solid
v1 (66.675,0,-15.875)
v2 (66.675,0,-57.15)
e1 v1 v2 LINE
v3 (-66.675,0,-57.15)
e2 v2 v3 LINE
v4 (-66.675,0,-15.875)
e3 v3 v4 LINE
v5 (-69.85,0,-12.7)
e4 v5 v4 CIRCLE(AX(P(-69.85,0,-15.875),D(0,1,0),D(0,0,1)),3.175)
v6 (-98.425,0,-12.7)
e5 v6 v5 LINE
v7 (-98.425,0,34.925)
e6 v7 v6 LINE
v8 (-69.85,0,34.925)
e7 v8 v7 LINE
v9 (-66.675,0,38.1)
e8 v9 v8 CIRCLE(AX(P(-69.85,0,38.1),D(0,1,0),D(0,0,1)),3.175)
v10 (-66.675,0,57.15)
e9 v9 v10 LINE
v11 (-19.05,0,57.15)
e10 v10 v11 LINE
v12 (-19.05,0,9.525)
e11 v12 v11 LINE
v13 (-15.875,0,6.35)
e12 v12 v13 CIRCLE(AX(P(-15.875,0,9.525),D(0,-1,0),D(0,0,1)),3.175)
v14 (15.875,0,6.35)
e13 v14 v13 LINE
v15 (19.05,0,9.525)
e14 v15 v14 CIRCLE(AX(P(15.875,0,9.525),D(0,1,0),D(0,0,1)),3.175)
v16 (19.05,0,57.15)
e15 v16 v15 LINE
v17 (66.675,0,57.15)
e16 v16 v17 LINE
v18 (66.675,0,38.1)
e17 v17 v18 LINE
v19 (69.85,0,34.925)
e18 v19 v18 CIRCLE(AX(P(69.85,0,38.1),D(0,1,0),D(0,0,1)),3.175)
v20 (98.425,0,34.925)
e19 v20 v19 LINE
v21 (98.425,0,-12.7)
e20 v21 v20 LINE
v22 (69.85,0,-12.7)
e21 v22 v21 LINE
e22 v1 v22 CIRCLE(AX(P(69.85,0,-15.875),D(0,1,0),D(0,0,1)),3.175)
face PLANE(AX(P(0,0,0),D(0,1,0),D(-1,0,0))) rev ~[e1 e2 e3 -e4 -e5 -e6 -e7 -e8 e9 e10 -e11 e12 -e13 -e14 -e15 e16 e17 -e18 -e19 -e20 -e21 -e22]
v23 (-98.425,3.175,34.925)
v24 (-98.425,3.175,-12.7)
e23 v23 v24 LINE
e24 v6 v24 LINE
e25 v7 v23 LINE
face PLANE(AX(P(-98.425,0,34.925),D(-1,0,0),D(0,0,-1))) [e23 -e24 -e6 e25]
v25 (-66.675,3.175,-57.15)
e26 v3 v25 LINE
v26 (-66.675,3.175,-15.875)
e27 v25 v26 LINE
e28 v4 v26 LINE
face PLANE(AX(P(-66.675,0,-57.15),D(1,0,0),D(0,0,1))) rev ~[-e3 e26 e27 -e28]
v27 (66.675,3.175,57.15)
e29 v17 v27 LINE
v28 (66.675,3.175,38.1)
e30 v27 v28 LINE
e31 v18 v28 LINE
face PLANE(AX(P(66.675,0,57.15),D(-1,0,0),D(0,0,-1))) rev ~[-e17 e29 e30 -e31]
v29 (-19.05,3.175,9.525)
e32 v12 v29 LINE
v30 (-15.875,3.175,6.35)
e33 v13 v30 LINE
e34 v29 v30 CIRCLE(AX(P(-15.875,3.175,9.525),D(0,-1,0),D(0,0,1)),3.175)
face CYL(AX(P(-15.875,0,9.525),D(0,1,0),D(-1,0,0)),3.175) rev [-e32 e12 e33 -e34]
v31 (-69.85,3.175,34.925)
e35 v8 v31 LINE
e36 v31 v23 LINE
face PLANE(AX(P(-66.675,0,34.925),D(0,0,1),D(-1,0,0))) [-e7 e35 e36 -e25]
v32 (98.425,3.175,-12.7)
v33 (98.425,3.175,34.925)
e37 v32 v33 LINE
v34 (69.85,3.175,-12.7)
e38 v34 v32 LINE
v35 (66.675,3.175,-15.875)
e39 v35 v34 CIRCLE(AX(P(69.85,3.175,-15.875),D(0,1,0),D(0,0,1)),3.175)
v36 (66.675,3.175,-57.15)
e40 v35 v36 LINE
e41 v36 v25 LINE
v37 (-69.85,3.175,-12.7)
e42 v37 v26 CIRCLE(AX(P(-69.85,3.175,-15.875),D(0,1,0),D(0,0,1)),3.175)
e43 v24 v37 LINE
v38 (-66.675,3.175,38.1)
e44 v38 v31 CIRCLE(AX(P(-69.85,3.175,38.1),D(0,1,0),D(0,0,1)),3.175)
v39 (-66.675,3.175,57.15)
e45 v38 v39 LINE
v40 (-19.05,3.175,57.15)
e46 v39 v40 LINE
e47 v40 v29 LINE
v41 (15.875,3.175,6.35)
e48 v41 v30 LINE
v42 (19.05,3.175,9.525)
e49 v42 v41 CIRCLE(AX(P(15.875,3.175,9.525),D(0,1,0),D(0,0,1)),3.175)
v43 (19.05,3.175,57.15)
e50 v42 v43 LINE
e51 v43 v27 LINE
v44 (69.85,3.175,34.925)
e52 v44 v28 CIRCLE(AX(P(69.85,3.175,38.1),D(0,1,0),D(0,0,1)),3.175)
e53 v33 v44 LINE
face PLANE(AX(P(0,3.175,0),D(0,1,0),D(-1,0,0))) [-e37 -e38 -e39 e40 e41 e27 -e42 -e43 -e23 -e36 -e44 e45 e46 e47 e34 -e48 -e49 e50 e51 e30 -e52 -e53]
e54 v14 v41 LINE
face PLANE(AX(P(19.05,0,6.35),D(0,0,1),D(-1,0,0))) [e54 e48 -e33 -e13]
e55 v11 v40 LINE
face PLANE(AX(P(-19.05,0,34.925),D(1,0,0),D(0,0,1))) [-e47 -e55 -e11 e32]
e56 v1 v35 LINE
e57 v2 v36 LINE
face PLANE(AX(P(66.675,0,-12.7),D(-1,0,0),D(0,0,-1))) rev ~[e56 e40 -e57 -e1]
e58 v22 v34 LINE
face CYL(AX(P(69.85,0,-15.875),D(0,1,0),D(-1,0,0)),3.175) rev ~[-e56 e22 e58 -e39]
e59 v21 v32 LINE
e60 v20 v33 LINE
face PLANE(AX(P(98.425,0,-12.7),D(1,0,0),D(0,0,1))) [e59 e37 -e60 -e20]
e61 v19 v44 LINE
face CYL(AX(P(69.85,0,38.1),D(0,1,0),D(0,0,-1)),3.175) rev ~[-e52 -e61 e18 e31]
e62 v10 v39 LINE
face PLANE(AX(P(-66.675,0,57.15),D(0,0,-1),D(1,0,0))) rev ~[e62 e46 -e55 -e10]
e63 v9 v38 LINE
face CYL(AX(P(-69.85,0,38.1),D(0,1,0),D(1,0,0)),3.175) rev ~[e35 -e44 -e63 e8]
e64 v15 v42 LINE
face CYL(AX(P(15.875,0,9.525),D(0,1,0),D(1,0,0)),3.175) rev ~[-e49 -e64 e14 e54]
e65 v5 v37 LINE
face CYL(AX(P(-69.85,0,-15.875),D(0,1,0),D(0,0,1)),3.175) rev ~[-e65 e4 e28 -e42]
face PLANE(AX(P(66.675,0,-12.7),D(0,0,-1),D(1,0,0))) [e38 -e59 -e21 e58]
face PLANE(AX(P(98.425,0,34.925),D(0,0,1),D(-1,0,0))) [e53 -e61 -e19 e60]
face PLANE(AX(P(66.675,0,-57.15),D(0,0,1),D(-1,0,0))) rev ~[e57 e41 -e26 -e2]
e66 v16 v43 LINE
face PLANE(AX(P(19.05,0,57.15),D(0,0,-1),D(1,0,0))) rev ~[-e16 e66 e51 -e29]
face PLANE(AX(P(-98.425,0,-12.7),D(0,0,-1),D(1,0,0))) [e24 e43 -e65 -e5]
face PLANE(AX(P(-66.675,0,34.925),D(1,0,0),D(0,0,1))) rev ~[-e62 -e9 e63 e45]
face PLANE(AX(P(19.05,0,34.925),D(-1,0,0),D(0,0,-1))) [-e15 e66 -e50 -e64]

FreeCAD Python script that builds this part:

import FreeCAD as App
import Part
import Sketcher
Q = App.Units.Quantity


def edges_at(feature, points):
    """Names of the edges that pass closest to the given points."""
    edges = feature.Shape.Edges
    near = lambda p: min(range(len(edges)), key=lambda i: edges[i].distToShape(Part.Vertex(*p))[0])
    return sorted({f"Edge{near(p) + 1}" for p in points})


def add_polygon(sketch, points):
    """Adds a closed chain of lines whose ends are joined by coincident constraints."""
    first, n = sketch.GeometryCount, len(points)
    for a, b in zip(points, points[1:] + points[:1]):
        sketch.addGeometry(Part.LineSegment(App.Vector(*a, 0), App.Vector(*b, 0)), False)
    for i in range(n):
        sketch.addConstraint(Sketcher.Constraint("Coincident", first + i, 2, first + (i + 1) % n, 1))

doc = App.newDocument("Part")
body = doc.addObject("PartDesign::Body", "Body")

# Sketch on XZ plane
sketch1 = body.newObject("Sketcher::SketchObject", "Sketch")
sketch1.AttachmentSupport = (doc.getObject("XZ_Plane"), [""])
sketch1.MapMode = "FlatFace"
add_polygon(sketch1, [(-67, 35), (-67, 57), (-19, 57), (-19, 6), (19, 6), (19, 57), (67, 57), (67, 35), (98, 35), (98, -13), (67, -13), (67, -57), (-67, -57), (-67, -13), (-98, -13), (-98, 35)])  # lines 0-15
sketch1.addConstraint(Sketcher.Constraint("Vertical", 0))
sketch1.addConstraint(Sketcher.Constraint("Horizontal", 1))
sketch1.addConstraint(Sketcher.Constraint("Vertical", 2))
sketch1.addConstraint(Sketcher.Constraint("Horizontal", 3))
sketch1.addConstraint(Sketcher.Constraint("Vertical", 4))
sketch1.addConstraint(Sketcher.Constraint("Horizontal", 5))
sketch1.addConstraint(Sketcher.Constraint("Vertical", 6))
sketch1.addConstraint(Sketcher.Constraint("Horizontal", 7))
sketch1.addConstraint(Sketcher.Constraint("Vertical", 8))
sketch1.addConstraint(Sketcher.Constraint("Horizontal", 9))
sketch1.addConstraint(Sketcher.Constraint("Vertical", 10))
sketch1.addConstraint(Sketcher.Constraint("Horizontal", 11))
sketch1.addConstraint(Sketcher.Constraint("Vertical", 12))
sketch1.addConstraint(Sketcher.Constraint("Horizontal", 13))
sketch1.addConstraint(Sketcher.Constraint("Vertical", 14))
sketch1.addConstraint(Sketcher.Constraint("Horizontal", 15))
sketch1.addConstraint(Sketcher.Constraint("Symmetric", 0, 2, 10, 2, -1, 1))
sketch1.addConstraint(Sketcher.Constraint("Symmetric", 5, 2, 11, 2, -1, 1))
sketch1.addConstraint(Sketcher.Constraint("Symmetric", 9, 2, 12, 2, -2))
sketch1.addConstraint(Sketcher.Constraint("Symmetric", 7, 2, 14, 2, -2))
sketch1.addConstraint(Sketcher.Constraint("Equal", 1, 5))
sketch1.addConstraint(Sketcher.Constraint("Equal", 5, 8))
sketch1.addConstraint(Sketcher.Constraint("DistanceX", 3, 1, 3, 2, Q("1.5 in")))
sketch1.addConstraint(Sketcher.Constraint("DistanceX", 11, 2, 11, 1, Q("5.25 in")))
sketch1.addConstraint(Sketcher.Constraint("DistanceY", 10, 2, 10, 1, Q("1.75 in")))
sketch1.addConstraint(Sketcher.Constraint("DistanceY", 11, 2, 0, 2, Q("4.5 in")))
sketch1.addConstraint(Sketcher.Constraint("DistanceY", 2, 2, 2, 1, Q("2 in")))
sketch1.addConstraint(Sketcher.Constraint("DistanceX", 7, 1, 7, 2, Q("1.25 in")))
pad1 = body.newObject("PartDesign::Pad", "Pad")
pad1.Profile = sketch1
pad1.Length = Q("0.125 in")
pad1.Reversed = True
doc.recompute()

fillet = body.newObject("PartDesign::Fillet", "Fillet")
fillet.Base = (pad1, edges_at(pad1, [
    (66.675, 1.587, 34.925),
    (66.675, 1.587, -12.7),
    (-19.05, 1.587, 6.35),
    (19.05, 1.587, 6.35),
    (-66.675, 1.587, 34.925),
    (-66.675, 1.587, -12.7),
]))
fillet.Radius = Q("0.125 in")

doc.recompute()
